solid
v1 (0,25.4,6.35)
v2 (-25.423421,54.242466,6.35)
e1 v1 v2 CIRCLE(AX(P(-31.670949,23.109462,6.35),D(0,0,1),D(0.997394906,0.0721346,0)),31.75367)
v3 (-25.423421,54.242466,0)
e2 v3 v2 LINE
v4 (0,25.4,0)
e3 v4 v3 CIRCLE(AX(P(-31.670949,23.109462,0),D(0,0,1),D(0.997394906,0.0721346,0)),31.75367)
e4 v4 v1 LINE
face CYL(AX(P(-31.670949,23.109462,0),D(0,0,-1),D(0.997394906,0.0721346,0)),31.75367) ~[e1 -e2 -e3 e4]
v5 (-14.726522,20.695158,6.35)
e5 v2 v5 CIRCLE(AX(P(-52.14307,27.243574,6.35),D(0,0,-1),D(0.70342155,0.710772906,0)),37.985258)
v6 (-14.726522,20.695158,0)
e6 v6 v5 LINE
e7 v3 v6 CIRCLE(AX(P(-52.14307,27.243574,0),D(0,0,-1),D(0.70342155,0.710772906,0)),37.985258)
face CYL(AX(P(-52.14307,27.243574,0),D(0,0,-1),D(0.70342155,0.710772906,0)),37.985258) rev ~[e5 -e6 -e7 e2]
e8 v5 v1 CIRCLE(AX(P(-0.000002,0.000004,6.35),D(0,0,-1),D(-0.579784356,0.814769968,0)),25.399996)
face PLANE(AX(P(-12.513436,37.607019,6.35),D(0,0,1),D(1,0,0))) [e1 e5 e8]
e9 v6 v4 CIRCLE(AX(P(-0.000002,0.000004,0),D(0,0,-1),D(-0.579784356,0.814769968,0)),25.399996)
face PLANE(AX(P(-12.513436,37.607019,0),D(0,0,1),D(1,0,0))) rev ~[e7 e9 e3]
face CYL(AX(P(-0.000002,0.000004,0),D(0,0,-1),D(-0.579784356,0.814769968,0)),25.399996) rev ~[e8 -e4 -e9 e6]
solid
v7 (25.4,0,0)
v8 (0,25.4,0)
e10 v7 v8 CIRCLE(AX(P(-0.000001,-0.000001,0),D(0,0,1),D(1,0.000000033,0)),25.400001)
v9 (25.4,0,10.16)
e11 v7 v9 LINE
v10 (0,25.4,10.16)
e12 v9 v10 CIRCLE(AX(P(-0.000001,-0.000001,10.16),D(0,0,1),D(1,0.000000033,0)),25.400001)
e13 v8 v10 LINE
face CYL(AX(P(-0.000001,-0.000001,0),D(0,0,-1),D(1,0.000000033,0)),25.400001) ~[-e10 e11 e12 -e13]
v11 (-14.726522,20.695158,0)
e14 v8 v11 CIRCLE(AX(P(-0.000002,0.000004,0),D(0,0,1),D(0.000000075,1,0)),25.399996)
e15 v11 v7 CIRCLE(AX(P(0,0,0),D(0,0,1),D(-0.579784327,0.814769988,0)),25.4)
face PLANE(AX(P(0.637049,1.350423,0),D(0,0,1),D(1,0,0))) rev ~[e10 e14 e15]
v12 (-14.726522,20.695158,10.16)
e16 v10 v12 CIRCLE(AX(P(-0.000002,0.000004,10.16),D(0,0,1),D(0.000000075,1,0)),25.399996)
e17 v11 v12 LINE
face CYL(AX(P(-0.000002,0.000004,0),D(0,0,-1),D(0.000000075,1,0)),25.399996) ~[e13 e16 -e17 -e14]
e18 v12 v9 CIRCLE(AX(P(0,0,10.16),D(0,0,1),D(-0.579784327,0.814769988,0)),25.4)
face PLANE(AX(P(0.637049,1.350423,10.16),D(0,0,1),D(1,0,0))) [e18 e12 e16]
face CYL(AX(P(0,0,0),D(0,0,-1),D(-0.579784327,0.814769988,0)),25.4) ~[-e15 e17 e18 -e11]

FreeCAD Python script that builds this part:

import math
import FreeCAD as App
import Part
import Sketcher

V = App.Vector
Q = App.Units.Quantity

doc = App.newDocument("Part")
params = doc.addObject("Spreadsheet::Sheet", "Params")
for row, (alias, value) in enumerate([
    ("sketch1_radius", "1 in"),
    ("pad1_length", "0.4 in"),
    ("sketch2_radius", "0.9999998 in"),
    ("pad2_length", "0.25 in"),
], start=1):
    params.set(f"A{row}", alias)
    params.set(f"B{row}", "=" + value)
    params.setAlias(f"B{row}", alias)

body = doc.addObject("PartDesign::Body", "Body")

# Sketch on XY plane
sketch1 = body.newObject("Sketcher::SketchObject", "Sketch")
sketch1.AttachmentSupport = (doc.getObject("XY_Plane"), [""])
sketch1.MapMode = "FlatFace"
sketch1.addGeometry(Part.ArcOfCircle(Part.Circle(V(0, 0, 0), V(0, 0, 1), 25), math.radians(125), math.radians(360)), False)
sketch1.addGeometry(Part.ArcOfCircle(Part.Circle(V(0, 0, 0), V(0, 0, 1), 25), math.radians(0), math.radians(90)), False)
sketch1.addGeometry(Part.ArcOfCircle(Part.Circle(V(0, 0, 0), V(0, 0, 1), 25), math.radians(90), math.radians(125)), False)
sketch1.addConstraint(Sketcher.Constraint("Tangent", 0, 2, 1, 1))
sketch1.addConstraint(Sketcher.Constraint("Tangent", 1, 2, 2, 1))
sketch1.addConstraint(Sketcher.Constraint("Tangent", 2, 2, 0, 1))
sketch1.addConstraint(Sketcher.Constraint("Coincident", 0, 3, -1, 1))
sketch1.addConstraint(Sketcher.Constraint("PointOnObject", 0, 2, -1))
sketch1.addConstraint(Sketcher.Constraint("PointOnObject", 1, 2, -2))
sketch1.addConstraint(Sketcher.Constraint("Radius", 0, Q("1 in")))
sketch1.addConstraint(Sketcher.Constraint("DistanceY", -1, 1, 2, 2, Q("20.695158 mm")))
sketch1.setExpression("Constraints[6]", "Params.sketch1_radius")
pad1 = body.newObject("PartDesign::Pad", "Pad")
pad1.Profile = sketch1
pad1.setExpression("Length", "Params.pad1_length")
body2 = doc.addObject("PartDesign::Body", "Body001")

# Sketch on XY plane
sketch2 = body2.newObject("Sketcher::SketchObject", "Sketch001")
sketch2.AttachmentSupport = (doc.getObject("XY_Plane001"), [""])
sketch2.MapMode = "FlatFace"
sketch2.addGeometry(Part.ArcOfCircle(Part.Circle(V(0, 0, 0), V(0, 0, 1), 25), math.radians(90), math.radians(125)), False)
sketch2.addGeometry(Part.ArcOfCircle(Part.Circle(V(-32, 23, 0), V(0, 0, 1), 32), math.radians(4), math.radians(79)), False)
sketch2.addGeometry(Part.ArcOfCircle(Part.Circle(V(-52, 27, 0), V(0, 0, 1), 38), math.radians(-10), math.radians(45)), False)
sketch2.addConstraint(Sketcher.Constraint("Coincident", 0, 1, 1, 1))
sketch2.addConstraint(Sketcher.Constraint("Coincident", 1, 2, 2, 2))
sketch2.addConstraint(Sketcher.Constraint("Coincident", 2, 1, 0, 2))
sketch2.addConstraint(Sketcher.Constraint("Coincident", 0, 3, -1, 1))
sketch2.addConstraint(Sketcher.Constraint("PointOnObject", 0, 1, -2))
sketch2.addConstraint(Sketcher.Constraint("Radius", 0, Q("0.9999998 in")))
sketch2.addConstraint(Sketcher.Constraint("Radius", 1, Q("31.75367 mm")))
sketch2.addConstraint(Sketcher.Constraint("Radius", 2, Q("37.985258 mm")))
sketch2.addConstraint(Sketcher.Constraint("DistanceX", 1, 2, 2, 1, Q("10.696899 mm")))
sketch2.addConstraint(Sketcher.Constraint("DistanceX", 1, 3, -1, 1, Q("31.670949 mm")))
sketch2.addConstraint(Sketcher.Constraint("DistanceX", 2, 3, -1, 1, Q("52.14307 mm")))
sketch2.setExpression("Constraints[5]", "Params.sketch2_radius")
pad2 = body2.newObject("PartDesign::Pad", "Pad001")
pad2.Profile = sketch2
pad2.setExpression("Length", "Params.pad2_length")

doc.recompute()
